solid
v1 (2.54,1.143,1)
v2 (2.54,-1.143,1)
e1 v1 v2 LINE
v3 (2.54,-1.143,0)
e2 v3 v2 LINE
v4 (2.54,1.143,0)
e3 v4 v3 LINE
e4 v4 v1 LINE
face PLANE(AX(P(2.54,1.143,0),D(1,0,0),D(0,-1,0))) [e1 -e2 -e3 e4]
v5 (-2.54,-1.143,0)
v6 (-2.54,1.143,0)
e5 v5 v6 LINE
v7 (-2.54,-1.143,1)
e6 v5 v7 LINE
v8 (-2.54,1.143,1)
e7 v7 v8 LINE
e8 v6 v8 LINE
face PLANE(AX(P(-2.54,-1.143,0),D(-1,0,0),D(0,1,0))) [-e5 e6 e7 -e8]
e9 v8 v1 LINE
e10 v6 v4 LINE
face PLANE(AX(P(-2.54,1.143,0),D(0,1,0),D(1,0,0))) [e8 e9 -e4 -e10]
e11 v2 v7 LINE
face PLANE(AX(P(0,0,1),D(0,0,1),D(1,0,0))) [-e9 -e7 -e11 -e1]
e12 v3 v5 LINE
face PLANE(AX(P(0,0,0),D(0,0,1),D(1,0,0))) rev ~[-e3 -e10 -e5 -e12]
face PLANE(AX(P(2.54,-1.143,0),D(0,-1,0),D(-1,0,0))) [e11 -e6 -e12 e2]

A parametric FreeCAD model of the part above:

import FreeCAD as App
import Part
import Sketcher

V = App.Vector
Q = App.Units.Quantity


def add_polygon(sketch, points):
    """Adds a closed chain of lines whose ends are joined by coincident constraints."""
    first, n = sketch.GeometryCount, len(points)
    for a, b in zip(points, points[1:] + points[:1]):
        sketch.addGeometry(Part.LineSegment(App.Vector(*a, 0), App.Vector(*b, 0)), False)
    for i in range(n):
        sketch.addConstraint(Sketcher.Constraint("Coincident", first + i, 2, first + (i + 1) % n, 1))

doc = App.newDocument("Part")
body = doc.addObject("PartDesign::Body", "Body")

# Sketch on XY plane
sketch1 = body.newObject("Sketcher::SketchObject", "Sketch")
sketch1.AttachmentSupport = (doc.getObject("XY_Plane"), [""])
sketch1.MapMode = "FlatFace"
add_polygon(sketch1, [(2.5, 1.1), (-2.5, 1.1), (-2.5, -1.1), (2.5, -1.1)])  # lines 0-3
sketch1.addConstraint([
    Sketcher.Constraint("Horizontal", 0),
    Sketcher.Constraint("Vertical", 1),
    Sketcher.Constraint("Horizontal", 2),
    Sketcher.Constraint("Vertical", 3),
    Sketcher.Constraint("Symmetric", 0, 2, 2, 2, -1, 1),
    Sketcher.Constraint("DistanceX", 0, 2, 0, 1, Q("0.2 in")),
    Sketcher.Constraint("DistanceY", 1, 2, 1, 1, Q("0.09 in")),
])
pad1 = body.newObject("PartDesign::Pad", "Pad")
pad1.Profile = sketch1
pad1.Length = 1

doc.recompute()
